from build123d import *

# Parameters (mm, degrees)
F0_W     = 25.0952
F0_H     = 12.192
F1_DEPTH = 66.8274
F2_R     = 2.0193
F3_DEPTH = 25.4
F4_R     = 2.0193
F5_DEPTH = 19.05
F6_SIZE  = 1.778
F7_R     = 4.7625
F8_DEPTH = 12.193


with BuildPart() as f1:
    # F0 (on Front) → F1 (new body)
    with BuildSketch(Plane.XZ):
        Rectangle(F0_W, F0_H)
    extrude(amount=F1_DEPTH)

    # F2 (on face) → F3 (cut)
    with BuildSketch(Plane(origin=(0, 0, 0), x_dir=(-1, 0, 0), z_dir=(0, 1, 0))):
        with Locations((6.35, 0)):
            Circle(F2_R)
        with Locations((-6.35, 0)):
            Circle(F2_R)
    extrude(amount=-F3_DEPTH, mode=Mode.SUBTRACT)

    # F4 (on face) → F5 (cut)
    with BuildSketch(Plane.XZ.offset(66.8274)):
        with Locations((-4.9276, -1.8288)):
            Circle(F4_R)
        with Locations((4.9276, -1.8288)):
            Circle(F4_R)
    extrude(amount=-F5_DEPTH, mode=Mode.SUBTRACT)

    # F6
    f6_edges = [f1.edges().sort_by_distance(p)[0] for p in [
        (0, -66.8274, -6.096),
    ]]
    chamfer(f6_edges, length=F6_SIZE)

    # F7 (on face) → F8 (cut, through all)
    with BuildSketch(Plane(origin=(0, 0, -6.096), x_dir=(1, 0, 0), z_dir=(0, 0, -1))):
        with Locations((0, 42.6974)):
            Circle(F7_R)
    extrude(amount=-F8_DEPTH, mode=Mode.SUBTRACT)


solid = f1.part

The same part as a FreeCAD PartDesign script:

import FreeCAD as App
import Part
import Sketcher

V = App.Vector
Q = App.Units.Quantity


def edges_at(feature, points):
    """Names of the edges that pass closest to the given points."""
    edges = feature.Shape.Edges
    near = lambda p: min(range(len(edges)), key=lambda i: edges[i].distToShape(Part.Vertex(*p))[0])
    return sorted({f"Edge{near(p) + 1}" for p in points})


def add_polygon(sketch, points):
    """Adds a closed chain of lines whose ends are joined by coincident constraints."""
    first, n = sketch.GeometryCount, len(points)
    for a, b in zip(points, points[1:] + points[:1]):
        sketch.addGeometry(Part.LineSegment(App.Vector(*a, 0), App.Vector(*b, 0)), False)
    for i in range(n):
        sketch.addConstraint(Sketcher.Constraint("Coincident", first + i, 2, first + (i + 1) % n, 1))

doc = App.newDocument("Part")
params = doc.addObject("Spreadsheet::Sheet", "Params")
for row, (alias, value) in enumerate([
    ("sketch1_height", "0.48 in"),
    ("sketch1_width", "0.988 in"),
    ("pad1_length", "2.631 in"),
    ("sketch2_diameter", "0.159 in"),
    ("pocket1_length", "1 in"),
    ("sketch3_diameter", "0.159 in"),
    ("pocket2_length", "0.75 in"),
    ("chamfer_size", "0.07 in"),
    ("sketch4_diameter", "0.375 in"),
], start=1):
    params.set(f"A{row}", alias)
    params.set(f"B{row}", "=" + value)
    params.setAlias(f"B{row}", alias)

body = doc.addObject("PartDesign::Body", "Body")

# Sketch on XZ plane
sketch1 = doc.addObject("Sketcher::SketchObject", "Sketch")
body.addObject(sketch1)
sketch1.AttachmentSupport = (doc.XZ_Plane, [""])
sketch1.MapMode = "FlatFace"
add_polygon(sketch1, [(-12.5476, 6.096), (-12.5476, -6.096), (12.5476, -6.096), (12.5476, 6.096)])  # lines 0-3
sketch1.addConstraint(Sketcher.Constraint("Vertical", 0))
sketch1.addConstraint(Sketcher.Constraint("Horizontal", 1))
sketch1.addConstraint(Sketcher.Constraint("Vertical", 2))
sketch1.addConstraint(Sketcher.Constraint("Horizontal", 3))
sketch1.addConstraint(Sketcher.Constraint("Symmetric", 0, 2, 2, 2, -1, 1))
sketch1.addConstraint(Sketcher.Constraint("DistanceY", 0, 2, 0, 1, Q("0.48 in")))
sketch1.addConstraint(Sketcher.Constraint("DistanceX", 1, 1, 1, 2, Q("0.988 in")))
sketch1.setExpression("Constraints[9]", "Params.sketch1_height")
sketch1.setExpression("Constraints[10]", "Params.sketch1_width")
pad1 = doc.addObject("PartDesign::Pad", "Pad")
body.addObject(pad1)
pad1.Profile = sketch1
pad1.setExpression("Length", "Params.pad1_length")

# Sketch on XZ plane
sketch2 = doc.addObject("Sketcher::SketchObject", "Sketch001")
body.addObject(sketch2)
sketch2.AttachmentSupport = (doc.XZ_Plane, [""])
sketch2.MapMode = "FlatFace"
sketch2.addGeometry(Part.Circle(V(-6.35, 0, 0), V(0, 0, 1), 2.0193), False)
sketch2.addGeometry(Part.Circle(V(6.35, 0, 0), V(0, 0, 1), 2.0193), False)
sketch2.addConstraint(Sketcher.Constraint("Equal", 0, 1))
sketch2.addConstraint(Sketcher.Constraint("Symmetric", 0, 3, 1, 3, -1, 1))
sketch2.addConstraint(Sketcher.Constraint("PointOnObject", 0, 3, -1))
sketch2.addConstraint(Sketcher.Constraint("Diameter", 0, Q("0.159 in")))
sketch2.addConstraint(Sketcher.Constraint("DistanceX", 0, 3, 1, 3, Q("0.5 in")))
sketch2.setExpression("Constraints[3]", "Params.sketch2_diameter")
pocket1 = doc.addObject("PartDesign::Pocket", "Pocket")
body.addObject(pocket1)
pocket1.Profile = sketch2
pocket1.setExpression("Length", "Params.pocket1_length")
pocket1.Reversed = True

# Sketch on XZ plane
sketch3 = doc.addObject("Sketcher::SketchObject", "Sketch002")
body.addObject(sketch3)
sketch3.AttachmentSupport = (doc.XZ_Plane, [""])
sketch3.MapMode = "FlatFace"
sketch3.AttachmentOffset = App.Placement(V(0, 0, 2.631 * 25.4), App.Rotation())
sketch3.addGeometry(Part.Circle(V(-4.9276, -1.8288, 0), V(0, 0, 1), 2.0193), False)
sketch3.addGeometry(Part.Circle(V(4.9276, -1.8288, 0), V(0, 0, 1), 2.0193), False)
sketch3.addConstraint(Sketcher.Constraint("Equal", 0, 1))
sketch3.addConstraint(Sketcher.Constraint("Symmetric", 0, 3, 1, 3, -2))
sketch3.addConstraint(Sketcher.Constraint("Diameter", 0, Q("0.159 in")))
sketch3.addConstraint(Sketcher.Constraint("DistanceX", 0, 3, -1, 1, Q("0.194 in")))
sketch3.addConstraint(Sketcher.Constraint("DistanceY", 0, 3, -1, 1, Q("0.072 in")))
sketch3.setExpression("Constraints[2]", "Params.sketch3_diameter")
pocket2 = doc.addObject("PartDesign::Pocket", "Pocket001")
body.addObject(pocket2)
pocket2.Profile = sketch3
pocket2.setExpression("Length", "Params.pocket2_length")
doc.recompute()

chamfer = doc.addObject("PartDesign::Chamfer", "Chamfer")
body.addObject(chamfer)
chamfer.Base = (pocket2, edges_at(pocket2, [(0, -66.827, -6.096)]))
chamfer.setExpression("Size", "Params.chamfer_size")

# Sketch on XY plane
sketch4 = doc.addObject("Sketcher::SketchObject", "Sketch003")
body.addObject(sketch4)
sketch4.AttachmentSupport = (doc.XY_Plane, [""])
sketch4.MapMode = "FlatFace"
sketch4.AttachmentOffset = App.Placement(V(0, 0, -0.24 * 25.4), App.Rotation())
sketch4.addGeometry(Part.Circle(V(0, -42.6974, 0), V(0, 0, 1), 4.7625), False)
sketch4.addConstraint(Sketcher.Constraint("PointOnObject", 0, 3, -2))
sketch4.addConstraint(Sketcher.Constraint("Diameter", 0, Q("0.375 in")))
sketch4.addConstraint(Sketcher.Constraint("DistanceY", 0, 3, -1, 1, Q("1.681 in")))
sketch4.setExpression("Constraints[1]", "Params.sketch4_diameter")
pocket3 = doc.addObject("PartDesign::Pocket", "Pocket002")
body.addObject(pocket3)
pocket3.Profile = sketch4
pocket3.Type = "ThroughAll"
pocket3.Reversed = True

doc.recompute()
